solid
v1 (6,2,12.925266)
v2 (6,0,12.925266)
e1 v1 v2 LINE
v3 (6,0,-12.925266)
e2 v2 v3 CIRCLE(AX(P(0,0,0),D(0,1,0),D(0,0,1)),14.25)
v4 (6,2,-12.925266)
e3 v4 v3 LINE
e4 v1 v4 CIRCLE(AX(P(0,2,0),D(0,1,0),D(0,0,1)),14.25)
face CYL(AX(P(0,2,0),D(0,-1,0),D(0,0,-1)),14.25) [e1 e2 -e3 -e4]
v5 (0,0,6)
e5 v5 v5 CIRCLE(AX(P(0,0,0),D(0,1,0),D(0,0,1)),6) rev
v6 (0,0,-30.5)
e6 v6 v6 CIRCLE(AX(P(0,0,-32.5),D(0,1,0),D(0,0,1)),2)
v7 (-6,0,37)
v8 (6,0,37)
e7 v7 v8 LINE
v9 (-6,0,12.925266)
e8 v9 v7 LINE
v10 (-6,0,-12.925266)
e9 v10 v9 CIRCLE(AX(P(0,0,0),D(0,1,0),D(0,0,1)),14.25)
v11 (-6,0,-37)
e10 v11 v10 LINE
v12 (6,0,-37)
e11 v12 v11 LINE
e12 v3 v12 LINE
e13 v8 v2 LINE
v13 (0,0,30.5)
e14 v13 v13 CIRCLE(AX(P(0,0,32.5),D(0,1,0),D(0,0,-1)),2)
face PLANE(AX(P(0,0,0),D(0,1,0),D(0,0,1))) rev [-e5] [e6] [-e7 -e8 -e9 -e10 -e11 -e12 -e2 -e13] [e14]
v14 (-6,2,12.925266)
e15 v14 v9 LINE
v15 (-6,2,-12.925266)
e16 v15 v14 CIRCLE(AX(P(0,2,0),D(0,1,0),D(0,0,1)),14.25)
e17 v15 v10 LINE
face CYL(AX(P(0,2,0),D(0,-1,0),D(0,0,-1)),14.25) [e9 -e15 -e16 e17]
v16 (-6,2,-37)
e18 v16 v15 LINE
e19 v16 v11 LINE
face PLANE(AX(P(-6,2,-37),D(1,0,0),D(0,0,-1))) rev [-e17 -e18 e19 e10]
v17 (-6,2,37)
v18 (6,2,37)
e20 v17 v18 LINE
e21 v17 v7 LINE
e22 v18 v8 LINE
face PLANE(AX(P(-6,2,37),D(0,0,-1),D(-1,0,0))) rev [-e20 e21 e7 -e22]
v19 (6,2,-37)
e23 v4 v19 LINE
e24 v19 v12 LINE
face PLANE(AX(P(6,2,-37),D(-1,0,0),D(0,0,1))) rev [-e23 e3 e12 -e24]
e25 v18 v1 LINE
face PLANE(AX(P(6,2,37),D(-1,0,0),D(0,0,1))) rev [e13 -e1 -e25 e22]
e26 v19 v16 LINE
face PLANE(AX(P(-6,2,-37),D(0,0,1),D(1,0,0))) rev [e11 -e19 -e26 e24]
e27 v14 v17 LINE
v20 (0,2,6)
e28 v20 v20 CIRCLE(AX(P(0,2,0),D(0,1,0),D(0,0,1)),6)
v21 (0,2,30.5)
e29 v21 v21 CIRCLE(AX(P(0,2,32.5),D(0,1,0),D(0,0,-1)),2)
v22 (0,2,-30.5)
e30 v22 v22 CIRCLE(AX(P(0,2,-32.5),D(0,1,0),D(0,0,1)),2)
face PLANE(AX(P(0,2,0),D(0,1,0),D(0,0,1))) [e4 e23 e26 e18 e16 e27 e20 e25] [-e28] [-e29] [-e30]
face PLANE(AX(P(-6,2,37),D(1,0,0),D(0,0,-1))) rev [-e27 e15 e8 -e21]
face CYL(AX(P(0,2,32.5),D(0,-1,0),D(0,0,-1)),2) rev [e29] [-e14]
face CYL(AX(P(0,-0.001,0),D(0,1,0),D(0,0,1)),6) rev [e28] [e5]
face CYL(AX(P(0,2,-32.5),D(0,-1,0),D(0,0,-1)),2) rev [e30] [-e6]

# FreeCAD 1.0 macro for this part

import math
import FreeCAD as App
import Part
import Sketcher

V = App.Vector
Q = App.Units.Quantity

doc = App.newDocument("Part")
body = doc.addObject("PartDesign::Body", "Body")

sketch1 = body.newObject("Sketcher::SketchObject", "Sketch")
sketch1.AttachmentSupport = (doc.getObject("XZ_Plane"), [""])
sketch1.MapMode = "FlatFace"
sketch1.addGeometry(Part.LineSegment(V(6, -37, 0), V(-6, -37, 0)), False)
sketch1.addGeometry(Part.LineSegment(V(-6, -37, 0), V(-6, -12.9, 0)), False)
sketch1.addGeometry(Part.ArcOfCircle(Part.Circle(V(0, 0, 0), V(0, 0, 1), 14.2), math.radians(115), math.radians(245)), False)
sketch1.addGeometry(Part.LineSegment(V(-6, 12.9, 0), V(-6, 37, 0)), False)
sketch1.addGeometry(Part.LineSegment(V(-6, 37, 0), V(6, 37, 0)), False)
sketch1.addGeometry(Part.LineSegment(V(6, 37, 0), V(6, 12.9, 0)), False)
sketch1.addGeometry(Part.ArcOfCircle(Part.Circle(V(0, 0, 0), V(0, 0, 1), 14.2), math.radians(-65), math.radians(65)), False)
sketch1.addGeometry(Part.LineSegment(V(6, -12.9, 0), V(6, -37, 0)), False)
sketch1.addGeometry(Part.Circle(V(0, 32.5, 0), V(0, 0, 1), 2), False)
sketch1.addGeometry(Part.Circle(V(0, -32.5, 0), V(0, 0, 1), 2), False)
sketch1.addConstraint(Sketcher.Constraint("Coincident", 0, 2, 1, 1))
sketch1.addConstraint(Sketcher.Constraint("Coincident", 1, 2, 2, 2))
sketch1.addConstraint(Sketcher.Constraint("Coincident", 2, 1, 3, 1))
sketch1.addConstraint(Sketcher.Constraint("Coincident", 3, 2, 4, 1))
sketch1.addConstraint(Sketcher.Constraint("Coincident", 4, 2, 5, 1))
sketch1.addConstraint(Sketcher.Constraint("Coincident", 5, 2, 6, 2))
sketch1.addConstraint(Sketcher.Constraint("Coincident", 6, 1, 7, 1))
sketch1.addConstraint(Sketcher.Constraint("Coincident", 7, 2, 0, 1))
sketch1.addConstraint(Sketcher.Constraint("Horizontal", 0))
sketch1.addConstraint(Sketcher.Constraint("Vertical", 1))
sketch1.addConstraint(Sketcher.Constraint("Vertical", 3))
sketch1.addConstraint(Sketcher.Constraint("Horizontal", 4))
sketch1.addConstraint(Sketcher.Constraint("Vertical", 5))
sketch1.addConstraint(Sketcher.Constraint("Vertical", 7))
sketch1.addConstraint(Sketcher.Constraint("Coincident", 2, 3, -1, 1))
sketch1.addConstraint(Sketcher.Constraint("Coincident", 6, 3, -1, 1))
sketch1.addConstraint(Sketcher.Constraint("Equal", 2, 6))
sketch1.addConstraint(Sketcher.Constraint("Equal", 8, 9))
sketch1.addConstraint(Sketcher.Constraint("Symmetric", 8, 3, 9, 3, -1, 1))
sketch1.addConstraint(Sketcher.Constraint("Symmetric", 0, 2, 4, 2, -1, 1))
sketch1.addConstraint(Sketcher.Constraint("PointOnObject", 8, 3, -2))
sketch1.addConstraint(Sketcher.Constraint("Horizontal", 2, 1, 5, 2))
sketch1.addConstraint(Sketcher.Constraint("Horizontal", 1, 2, 6, 1))
sketch1.addConstraint(Sketcher.Constraint("Diameter", 8, Q("4 mm")))
sketch1.addConstraint(Sketcher.Constraint("DistanceX", 0, 2, 0, 1, Q("12 mm")))
sketch1.addConstraint(Sketcher.Constraint("Radius", 2, Q("14.25 mm")))
sketch1.addConstraint(Sketcher.Constraint("DistanceY", 0, 2, -1, 1, Q("37 mm")))
sketch1.addConstraint(Sketcher.Constraint("DistanceY", 9, 3, 8, 3, Q("65 mm")))
pad1 = body.newObject("PartDesign::Pad", "Pad")
pad1.Profile = sketch1
pad1.Length = 2
pad1.Reversed = True

sketch2 = body.newObject("Sketcher::SketchObject", "Sketch001")
sketch2.AttachmentSupport = (doc.getObject("XZ_Plane"), [""])
sketch2.MapMode = "FlatFace"
sketch2.AttachmentOffset = App.Placement(V(0, 0, -2), App.Rotation())
sketch2.addGeometry(Part.Circle(V(0, 0, 0), V(0, 0, 1), 6), False)
sketch2.addConstraint(Sketcher.Constraint("Coincident", 0, 3, -1, 1))
sketch2.addConstraint(Sketcher.Constraint("Diameter", 0, Q("12 mm")))
pocket1 = body.newObject("PartDesign::Pocket", "Pocket")
pocket1.Profile = sketch2
pocket1.Type = "UpToFirst"
pocket1.Reversed = True

doc.recompute()
